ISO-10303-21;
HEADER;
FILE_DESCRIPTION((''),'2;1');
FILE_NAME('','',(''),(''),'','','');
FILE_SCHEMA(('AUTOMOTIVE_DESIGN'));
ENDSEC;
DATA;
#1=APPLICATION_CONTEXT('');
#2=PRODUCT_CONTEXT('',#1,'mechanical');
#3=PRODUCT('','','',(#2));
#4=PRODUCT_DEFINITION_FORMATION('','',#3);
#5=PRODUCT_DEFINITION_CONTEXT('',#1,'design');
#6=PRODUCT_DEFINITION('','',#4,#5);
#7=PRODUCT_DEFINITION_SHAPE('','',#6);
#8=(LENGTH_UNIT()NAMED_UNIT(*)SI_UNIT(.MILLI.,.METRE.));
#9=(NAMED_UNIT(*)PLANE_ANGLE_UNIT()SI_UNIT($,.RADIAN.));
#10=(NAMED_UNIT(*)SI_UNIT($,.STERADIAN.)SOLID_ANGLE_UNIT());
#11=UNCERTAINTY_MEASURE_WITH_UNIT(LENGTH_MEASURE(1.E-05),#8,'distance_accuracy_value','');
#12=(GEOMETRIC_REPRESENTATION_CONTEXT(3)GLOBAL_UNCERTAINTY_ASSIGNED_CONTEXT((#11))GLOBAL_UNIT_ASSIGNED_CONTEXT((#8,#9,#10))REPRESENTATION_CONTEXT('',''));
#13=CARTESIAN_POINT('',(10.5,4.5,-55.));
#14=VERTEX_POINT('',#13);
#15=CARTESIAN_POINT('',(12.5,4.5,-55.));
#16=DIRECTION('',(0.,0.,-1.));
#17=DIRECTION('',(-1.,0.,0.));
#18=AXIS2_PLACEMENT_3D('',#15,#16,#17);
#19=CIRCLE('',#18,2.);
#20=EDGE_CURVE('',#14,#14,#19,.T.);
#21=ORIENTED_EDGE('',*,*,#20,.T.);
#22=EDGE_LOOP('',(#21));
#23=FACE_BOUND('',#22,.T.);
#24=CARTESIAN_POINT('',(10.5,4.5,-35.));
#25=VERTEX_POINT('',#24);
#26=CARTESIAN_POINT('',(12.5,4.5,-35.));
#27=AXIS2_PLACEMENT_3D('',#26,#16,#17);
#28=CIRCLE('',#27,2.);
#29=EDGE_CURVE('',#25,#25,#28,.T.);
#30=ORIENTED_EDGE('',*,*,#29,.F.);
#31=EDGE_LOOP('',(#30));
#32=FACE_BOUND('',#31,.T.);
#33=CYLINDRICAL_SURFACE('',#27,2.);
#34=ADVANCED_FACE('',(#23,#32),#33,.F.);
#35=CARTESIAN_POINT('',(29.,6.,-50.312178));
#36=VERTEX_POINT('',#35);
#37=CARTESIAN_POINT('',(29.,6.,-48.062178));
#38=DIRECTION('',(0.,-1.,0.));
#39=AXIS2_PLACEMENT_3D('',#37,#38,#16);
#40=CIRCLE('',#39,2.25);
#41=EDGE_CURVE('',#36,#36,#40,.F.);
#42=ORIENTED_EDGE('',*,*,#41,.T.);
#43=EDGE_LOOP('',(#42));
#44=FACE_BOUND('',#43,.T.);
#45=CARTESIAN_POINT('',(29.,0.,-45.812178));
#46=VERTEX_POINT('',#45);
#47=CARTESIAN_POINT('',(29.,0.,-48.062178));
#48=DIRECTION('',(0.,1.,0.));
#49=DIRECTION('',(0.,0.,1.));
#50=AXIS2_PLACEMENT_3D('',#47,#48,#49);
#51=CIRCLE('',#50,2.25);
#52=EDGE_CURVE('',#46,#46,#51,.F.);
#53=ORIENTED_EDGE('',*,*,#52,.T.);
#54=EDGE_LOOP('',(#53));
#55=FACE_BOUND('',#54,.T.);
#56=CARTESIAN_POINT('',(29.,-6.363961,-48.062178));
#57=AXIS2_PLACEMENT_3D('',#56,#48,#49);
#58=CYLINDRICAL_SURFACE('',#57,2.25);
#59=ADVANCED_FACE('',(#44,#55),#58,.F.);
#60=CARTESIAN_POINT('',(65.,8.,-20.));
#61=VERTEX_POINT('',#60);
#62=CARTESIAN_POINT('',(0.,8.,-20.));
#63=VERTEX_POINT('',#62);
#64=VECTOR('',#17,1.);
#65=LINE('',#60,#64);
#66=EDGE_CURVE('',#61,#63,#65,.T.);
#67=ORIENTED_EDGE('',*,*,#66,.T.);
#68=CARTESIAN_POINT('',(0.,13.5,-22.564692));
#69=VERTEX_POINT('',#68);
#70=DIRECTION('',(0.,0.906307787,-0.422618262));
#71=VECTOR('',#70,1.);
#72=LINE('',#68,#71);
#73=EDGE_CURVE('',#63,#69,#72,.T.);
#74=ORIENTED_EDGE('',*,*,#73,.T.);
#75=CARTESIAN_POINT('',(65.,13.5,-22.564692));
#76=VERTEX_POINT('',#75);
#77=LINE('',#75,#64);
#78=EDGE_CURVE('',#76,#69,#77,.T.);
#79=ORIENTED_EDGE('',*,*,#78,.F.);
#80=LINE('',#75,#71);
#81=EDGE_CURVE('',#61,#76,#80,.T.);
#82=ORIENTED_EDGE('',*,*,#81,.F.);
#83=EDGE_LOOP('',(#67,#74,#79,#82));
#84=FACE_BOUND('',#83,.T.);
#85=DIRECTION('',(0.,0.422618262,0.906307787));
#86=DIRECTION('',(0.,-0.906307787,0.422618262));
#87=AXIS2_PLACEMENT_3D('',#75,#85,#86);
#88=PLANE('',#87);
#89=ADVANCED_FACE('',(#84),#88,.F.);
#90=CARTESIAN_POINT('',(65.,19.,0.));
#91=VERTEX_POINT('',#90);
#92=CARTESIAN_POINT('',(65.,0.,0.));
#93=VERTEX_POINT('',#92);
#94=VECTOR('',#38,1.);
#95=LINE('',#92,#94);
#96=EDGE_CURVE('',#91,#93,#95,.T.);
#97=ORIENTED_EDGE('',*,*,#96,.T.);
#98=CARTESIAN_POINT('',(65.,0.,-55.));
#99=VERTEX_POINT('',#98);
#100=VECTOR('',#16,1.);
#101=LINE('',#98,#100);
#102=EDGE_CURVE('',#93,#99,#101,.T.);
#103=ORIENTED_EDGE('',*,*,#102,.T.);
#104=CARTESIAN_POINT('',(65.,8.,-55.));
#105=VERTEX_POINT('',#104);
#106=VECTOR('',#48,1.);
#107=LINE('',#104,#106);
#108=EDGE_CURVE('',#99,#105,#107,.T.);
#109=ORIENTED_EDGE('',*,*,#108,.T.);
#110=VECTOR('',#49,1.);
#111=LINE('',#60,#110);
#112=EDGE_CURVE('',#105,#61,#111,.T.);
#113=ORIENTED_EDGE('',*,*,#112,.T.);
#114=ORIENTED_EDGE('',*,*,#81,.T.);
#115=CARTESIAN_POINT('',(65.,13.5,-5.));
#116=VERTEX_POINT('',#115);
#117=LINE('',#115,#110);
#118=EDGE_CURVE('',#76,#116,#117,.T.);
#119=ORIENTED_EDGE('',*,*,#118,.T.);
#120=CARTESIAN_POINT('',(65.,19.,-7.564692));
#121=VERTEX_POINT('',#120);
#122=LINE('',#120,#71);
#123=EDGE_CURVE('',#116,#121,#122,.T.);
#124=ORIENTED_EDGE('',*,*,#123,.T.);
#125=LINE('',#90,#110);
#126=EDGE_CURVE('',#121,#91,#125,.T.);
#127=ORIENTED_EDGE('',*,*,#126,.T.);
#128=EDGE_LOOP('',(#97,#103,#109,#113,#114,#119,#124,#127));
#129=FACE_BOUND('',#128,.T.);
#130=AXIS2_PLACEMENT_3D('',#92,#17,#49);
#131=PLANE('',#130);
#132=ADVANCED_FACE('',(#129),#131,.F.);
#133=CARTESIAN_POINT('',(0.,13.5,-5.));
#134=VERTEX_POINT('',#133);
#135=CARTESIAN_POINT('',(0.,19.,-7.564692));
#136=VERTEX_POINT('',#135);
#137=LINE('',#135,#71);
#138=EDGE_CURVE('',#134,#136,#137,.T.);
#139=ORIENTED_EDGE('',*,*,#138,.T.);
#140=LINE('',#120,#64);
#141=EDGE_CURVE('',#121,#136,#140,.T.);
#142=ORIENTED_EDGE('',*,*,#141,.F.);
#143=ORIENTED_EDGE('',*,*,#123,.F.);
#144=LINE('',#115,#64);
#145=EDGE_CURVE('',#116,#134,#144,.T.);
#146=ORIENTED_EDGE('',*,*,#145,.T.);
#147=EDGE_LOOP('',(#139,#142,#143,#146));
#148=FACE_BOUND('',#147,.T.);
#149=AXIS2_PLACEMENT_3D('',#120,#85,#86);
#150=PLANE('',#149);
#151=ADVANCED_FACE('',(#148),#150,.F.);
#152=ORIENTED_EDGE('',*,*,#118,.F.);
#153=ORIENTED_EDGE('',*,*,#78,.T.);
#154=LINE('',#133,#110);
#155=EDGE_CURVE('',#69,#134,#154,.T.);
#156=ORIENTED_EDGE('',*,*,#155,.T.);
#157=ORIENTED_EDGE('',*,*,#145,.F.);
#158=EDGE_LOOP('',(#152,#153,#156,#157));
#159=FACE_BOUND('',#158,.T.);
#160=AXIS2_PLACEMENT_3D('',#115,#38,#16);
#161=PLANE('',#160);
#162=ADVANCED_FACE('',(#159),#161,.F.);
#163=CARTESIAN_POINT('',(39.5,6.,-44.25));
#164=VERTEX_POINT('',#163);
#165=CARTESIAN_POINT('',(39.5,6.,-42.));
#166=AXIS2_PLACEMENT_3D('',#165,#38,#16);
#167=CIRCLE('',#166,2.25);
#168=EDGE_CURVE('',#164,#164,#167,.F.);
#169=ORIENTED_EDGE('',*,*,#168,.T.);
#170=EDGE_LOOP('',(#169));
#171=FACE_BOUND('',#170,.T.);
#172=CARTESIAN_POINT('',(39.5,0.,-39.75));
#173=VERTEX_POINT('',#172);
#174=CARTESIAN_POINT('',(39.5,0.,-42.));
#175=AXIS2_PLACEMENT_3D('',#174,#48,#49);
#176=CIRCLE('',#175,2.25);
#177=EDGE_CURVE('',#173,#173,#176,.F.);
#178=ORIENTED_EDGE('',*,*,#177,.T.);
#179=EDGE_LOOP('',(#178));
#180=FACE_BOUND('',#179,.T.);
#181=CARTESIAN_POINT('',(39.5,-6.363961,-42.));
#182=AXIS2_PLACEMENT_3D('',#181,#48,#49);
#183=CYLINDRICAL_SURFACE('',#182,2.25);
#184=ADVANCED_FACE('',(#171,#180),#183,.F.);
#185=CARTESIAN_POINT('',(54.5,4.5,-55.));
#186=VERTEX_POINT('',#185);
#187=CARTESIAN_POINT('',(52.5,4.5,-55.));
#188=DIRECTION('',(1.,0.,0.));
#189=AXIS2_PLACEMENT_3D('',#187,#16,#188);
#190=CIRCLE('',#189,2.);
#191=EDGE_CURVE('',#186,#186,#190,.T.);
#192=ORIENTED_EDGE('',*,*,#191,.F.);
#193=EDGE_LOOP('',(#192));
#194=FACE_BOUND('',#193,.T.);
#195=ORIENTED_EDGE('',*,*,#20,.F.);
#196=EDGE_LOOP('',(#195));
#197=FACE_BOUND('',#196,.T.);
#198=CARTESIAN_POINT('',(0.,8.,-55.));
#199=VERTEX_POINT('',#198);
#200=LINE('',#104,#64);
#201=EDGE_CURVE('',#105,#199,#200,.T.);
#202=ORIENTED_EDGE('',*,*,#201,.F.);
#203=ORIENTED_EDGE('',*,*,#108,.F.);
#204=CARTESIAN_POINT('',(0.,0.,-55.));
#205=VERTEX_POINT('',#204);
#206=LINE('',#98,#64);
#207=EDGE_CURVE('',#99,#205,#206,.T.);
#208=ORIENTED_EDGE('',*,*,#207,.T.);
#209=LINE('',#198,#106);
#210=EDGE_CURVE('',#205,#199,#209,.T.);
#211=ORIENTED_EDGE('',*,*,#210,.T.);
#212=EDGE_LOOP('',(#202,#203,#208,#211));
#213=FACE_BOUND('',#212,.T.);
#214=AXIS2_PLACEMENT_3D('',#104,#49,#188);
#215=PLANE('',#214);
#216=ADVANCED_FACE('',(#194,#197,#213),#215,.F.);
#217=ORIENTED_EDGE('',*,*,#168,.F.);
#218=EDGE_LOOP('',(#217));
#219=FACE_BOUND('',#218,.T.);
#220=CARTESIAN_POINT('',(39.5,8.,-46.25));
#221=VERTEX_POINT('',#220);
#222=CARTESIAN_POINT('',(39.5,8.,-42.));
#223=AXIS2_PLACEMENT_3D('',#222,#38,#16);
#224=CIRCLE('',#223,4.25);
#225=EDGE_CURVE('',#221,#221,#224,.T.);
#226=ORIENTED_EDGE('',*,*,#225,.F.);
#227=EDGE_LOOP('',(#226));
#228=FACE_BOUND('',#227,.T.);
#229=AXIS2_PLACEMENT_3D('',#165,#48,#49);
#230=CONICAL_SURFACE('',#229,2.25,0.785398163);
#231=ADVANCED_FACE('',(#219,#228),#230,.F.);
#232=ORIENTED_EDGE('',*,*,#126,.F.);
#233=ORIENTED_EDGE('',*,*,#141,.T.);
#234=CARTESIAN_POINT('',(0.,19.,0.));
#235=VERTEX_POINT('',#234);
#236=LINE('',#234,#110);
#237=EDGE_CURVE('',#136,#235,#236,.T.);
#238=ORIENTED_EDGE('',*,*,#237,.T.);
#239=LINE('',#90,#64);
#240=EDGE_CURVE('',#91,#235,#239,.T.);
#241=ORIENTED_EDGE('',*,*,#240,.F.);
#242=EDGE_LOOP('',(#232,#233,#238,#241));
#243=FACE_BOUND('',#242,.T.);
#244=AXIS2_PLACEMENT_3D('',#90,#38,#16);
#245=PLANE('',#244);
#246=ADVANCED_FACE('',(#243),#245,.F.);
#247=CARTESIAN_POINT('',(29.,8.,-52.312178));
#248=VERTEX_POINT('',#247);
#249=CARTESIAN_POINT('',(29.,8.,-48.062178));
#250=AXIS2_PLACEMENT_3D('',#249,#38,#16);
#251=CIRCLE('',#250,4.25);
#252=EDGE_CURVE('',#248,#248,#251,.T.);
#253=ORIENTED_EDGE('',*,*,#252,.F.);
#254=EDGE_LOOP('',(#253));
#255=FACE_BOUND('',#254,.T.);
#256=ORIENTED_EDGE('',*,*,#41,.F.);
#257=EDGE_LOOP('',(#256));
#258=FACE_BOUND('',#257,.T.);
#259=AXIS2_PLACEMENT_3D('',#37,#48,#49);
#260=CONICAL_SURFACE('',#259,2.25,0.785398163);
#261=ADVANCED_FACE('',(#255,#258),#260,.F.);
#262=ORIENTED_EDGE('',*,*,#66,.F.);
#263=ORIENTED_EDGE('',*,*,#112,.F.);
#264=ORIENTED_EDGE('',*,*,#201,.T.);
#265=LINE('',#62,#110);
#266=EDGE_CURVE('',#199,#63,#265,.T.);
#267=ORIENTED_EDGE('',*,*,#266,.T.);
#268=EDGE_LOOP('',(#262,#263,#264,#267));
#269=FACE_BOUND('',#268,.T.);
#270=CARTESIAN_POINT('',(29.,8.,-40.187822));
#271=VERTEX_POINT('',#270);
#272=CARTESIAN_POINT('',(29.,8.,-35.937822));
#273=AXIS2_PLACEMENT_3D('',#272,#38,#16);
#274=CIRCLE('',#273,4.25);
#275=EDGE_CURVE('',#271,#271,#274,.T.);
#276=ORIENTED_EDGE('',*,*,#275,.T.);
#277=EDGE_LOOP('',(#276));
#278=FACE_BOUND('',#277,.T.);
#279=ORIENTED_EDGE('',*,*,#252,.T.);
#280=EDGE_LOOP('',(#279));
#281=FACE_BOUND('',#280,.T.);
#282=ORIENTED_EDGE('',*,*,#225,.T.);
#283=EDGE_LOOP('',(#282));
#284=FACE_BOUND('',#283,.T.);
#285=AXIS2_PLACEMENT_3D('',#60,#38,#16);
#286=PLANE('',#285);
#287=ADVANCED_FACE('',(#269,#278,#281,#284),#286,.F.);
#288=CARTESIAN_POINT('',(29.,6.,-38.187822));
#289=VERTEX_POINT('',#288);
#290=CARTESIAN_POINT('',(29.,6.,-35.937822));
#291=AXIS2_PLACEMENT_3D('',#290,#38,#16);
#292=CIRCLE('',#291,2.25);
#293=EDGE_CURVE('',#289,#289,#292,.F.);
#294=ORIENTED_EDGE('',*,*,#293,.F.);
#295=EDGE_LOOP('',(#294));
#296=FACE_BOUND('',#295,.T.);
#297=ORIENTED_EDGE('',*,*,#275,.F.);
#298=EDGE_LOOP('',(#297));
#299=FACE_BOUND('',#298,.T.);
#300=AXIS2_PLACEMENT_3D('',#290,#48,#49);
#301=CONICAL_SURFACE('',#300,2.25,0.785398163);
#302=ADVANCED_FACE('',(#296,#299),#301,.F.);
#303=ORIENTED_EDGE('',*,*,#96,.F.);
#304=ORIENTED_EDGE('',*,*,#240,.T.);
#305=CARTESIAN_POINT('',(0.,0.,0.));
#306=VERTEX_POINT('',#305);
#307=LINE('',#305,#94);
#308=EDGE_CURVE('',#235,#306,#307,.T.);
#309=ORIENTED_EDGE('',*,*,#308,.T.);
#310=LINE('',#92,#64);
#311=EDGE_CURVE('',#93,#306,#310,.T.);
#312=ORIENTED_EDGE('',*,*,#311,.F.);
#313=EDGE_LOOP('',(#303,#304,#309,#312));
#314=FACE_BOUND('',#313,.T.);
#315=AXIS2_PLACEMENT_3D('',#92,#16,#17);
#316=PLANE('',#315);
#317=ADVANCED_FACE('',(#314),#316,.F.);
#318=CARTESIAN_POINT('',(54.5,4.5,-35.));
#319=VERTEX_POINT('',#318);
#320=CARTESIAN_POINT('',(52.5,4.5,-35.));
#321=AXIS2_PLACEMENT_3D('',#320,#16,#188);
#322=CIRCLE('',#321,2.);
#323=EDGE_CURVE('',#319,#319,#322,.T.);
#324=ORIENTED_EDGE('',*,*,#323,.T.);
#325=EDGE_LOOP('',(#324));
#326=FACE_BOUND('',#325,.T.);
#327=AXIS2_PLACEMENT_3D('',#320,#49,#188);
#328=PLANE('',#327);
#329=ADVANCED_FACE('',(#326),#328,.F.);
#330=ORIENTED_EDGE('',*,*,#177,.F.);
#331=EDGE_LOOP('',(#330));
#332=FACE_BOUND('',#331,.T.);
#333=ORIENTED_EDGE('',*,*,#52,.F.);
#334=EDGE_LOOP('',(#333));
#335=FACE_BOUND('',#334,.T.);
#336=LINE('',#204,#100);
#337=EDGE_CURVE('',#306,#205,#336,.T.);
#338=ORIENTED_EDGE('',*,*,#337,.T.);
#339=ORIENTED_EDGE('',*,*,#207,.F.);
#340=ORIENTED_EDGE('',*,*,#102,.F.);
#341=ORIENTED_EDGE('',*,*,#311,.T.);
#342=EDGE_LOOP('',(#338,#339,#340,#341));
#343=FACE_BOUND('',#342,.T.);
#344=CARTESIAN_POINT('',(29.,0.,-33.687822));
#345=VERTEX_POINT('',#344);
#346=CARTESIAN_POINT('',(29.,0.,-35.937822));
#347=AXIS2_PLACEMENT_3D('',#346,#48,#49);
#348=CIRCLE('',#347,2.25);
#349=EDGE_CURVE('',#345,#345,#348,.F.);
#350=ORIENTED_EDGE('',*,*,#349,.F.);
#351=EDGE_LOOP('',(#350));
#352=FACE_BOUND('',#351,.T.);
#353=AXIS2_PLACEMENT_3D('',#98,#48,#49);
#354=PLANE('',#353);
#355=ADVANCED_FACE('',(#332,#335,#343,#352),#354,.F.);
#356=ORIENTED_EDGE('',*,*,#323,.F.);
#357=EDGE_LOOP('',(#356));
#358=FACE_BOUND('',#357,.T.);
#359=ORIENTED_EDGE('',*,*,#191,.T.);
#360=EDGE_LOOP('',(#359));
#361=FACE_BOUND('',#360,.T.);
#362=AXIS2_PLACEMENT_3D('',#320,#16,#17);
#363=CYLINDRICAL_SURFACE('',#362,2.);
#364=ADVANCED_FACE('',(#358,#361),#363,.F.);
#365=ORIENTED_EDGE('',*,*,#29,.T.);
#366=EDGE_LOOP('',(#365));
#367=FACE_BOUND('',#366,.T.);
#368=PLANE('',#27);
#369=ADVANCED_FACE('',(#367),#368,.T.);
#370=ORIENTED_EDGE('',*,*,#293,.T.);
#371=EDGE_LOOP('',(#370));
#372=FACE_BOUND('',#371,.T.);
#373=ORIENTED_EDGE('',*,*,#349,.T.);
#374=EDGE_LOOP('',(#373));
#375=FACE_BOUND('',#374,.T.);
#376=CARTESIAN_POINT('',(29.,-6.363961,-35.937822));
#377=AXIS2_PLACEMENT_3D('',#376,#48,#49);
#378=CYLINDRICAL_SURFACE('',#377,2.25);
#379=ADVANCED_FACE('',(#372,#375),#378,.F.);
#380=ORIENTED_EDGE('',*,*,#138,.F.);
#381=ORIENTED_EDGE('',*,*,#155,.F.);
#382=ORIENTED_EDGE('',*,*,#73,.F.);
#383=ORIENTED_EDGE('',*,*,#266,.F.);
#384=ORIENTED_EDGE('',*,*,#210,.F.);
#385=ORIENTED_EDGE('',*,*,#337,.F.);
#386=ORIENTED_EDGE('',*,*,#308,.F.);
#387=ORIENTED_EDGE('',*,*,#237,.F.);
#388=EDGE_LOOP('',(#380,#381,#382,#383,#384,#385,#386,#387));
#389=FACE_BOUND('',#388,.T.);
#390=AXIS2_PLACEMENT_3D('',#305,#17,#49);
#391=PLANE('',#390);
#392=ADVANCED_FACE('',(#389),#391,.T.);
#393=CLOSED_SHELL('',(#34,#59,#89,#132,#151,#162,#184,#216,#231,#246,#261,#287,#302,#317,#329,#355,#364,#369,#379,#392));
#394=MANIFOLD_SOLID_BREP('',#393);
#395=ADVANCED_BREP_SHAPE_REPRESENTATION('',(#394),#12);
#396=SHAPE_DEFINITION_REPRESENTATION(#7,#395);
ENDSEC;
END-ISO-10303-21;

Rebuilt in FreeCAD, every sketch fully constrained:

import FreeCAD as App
import Part
import Sketcher
from FreeCAD import Vector
Q = App.Units.Quantity


def edges_at(feature, points):
    """Names of the edges that pass closest to the given points."""
    edges = feature.Shape.Edges
    near = lambda p: min(range(len(edges)), key=lambda i: edges[i].distToShape(Part.Vertex(*p))[0])
    return sorted({f"Edge{near(p) + 1}" for p in points})


def add_polygon(sketch, points):
    """Adds a closed chain of lines whose ends are joined by coincident constraints."""
    first, n = sketch.GeometryCount, len(points)
    for a, b in zip(points, points[1:] + points[:1]):
        sketch.addGeometry(Part.LineSegment(App.Vector(*a, 0), App.Vector(*b, 0)), False)
    for i in range(n):
        sketch.addConstraint(Sketcher.Constraint("Coincident", first + i, 2, first + (i + 1) % n, 1))

doc = App.newDocument("Part")
body = doc.addObject("PartDesign::Body", "Body")

sketch1 = body.newObject("Sketcher::SketchObject", "Sketch")
sketch1.AttachmentSupport = (doc.getObject("YZ_Plane"), [""])
sketch1.MapMode = "FlatFace"
add_polygon(sketch1, [(19, 0), (0, 0), (0, -55), (8, -55), (8, -20), (14, -23), (14, -5), (19, -8)])
sketch1.addConstraint([
    Sketcher.Constraint("Horizontal", 0),
    Sketcher.Constraint("Vertical", 1),
    Sketcher.Constraint("Horizontal", 2),
    Sketcher.Constraint("Vertical", 3),
    Sketcher.Constraint("Vertical", 5),
    Sketcher.Constraint("Vertical", 7),
    Sketcher.Constraint("Coincident", 0, 2, -1, 1),
    Sketcher.Constraint("Parallel", 4, 6),
    Sketcher.Constraint("Equal", 4, 6),
    Sketcher.Constraint("DistanceX", 0, 2, 0, 1, 19.0),
    Sketcher.Constraint("DistanceX", 2, 1, 2, 2, 8.0),
    Sketcher.Constraint("DistanceY", 1, 2, 1, 1, 55.0),
    Sketcher.Constraint("DistanceY", 3, 1, 3, 2, 35.0),
    Sketcher.Constraint("Angle", 4, Q("-25 deg")),
    Sketcher.Constraint("DistanceY", 5, 2, -1, 1, 5.0),
])
pad1 = body.newObject("PartDesign::Pad", "Pad")
pad1.Profile = sketch1
pad1.Length = 65

sketch2 = body.newObject("Sketcher::SketchObject", "Sketch001")
sketch2.AttachmentSupport = (doc.getObject("XY_Plane"), [""])
sketch2.MapMode = "FlatFace"
sketch2.AttachmentOffset = App.Placement(Vector(0, 0, -55), App.Rotation())
sketch2.addGeometry([
    Part.Circle(Vector(12.5, 4.5, 0), Vector(0, 0, 1), 2),
    Part.Circle(Vector(52.5, 4.5, 0), Vector(0, 0, 1), 2),
], False)
sketch2.addConstraint([
    Sketcher.Constraint("Equal", 0, 1),
    Sketcher.Constraint("Horizontal", 0, 3, 1, 3),
    Sketcher.Constraint("Diameter", 0, 4.0),
    Sketcher.Constraint("DistanceX", 0, 3, 1, 3, 40.0),
    Sketcher.Constraint("DistanceX", -1, 1, 0, 3, 12.5),
    Sketcher.Constraint("DistanceY", -1, 1, 0, 3, 4.5),
])
pocket1 = body.newObject("PartDesign::Pocket", "Pocket")
pocket1.Profile = sketch2
pocket1.Length = 20
pocket1.Reversed = True

sketch3 = body.newObject("Sketcher::SketchObject", "Sketch002")
sketch3.AttachmentSupport = (doc.getObject("XZ_Plane"), [""])
sketch3.MapMode = "FlatFace"
sketch3.AttachmentOffset = App.Placement(Vector(0, 0, -8), App.Rotation())
sketch3.addGeometry([
    Part.Circle(Vector(39.5, -42, 0), Vector(0, 0, 1), 2.2),
    Part.Circle(Vector(29, -35.9, 0), Vector(0, 0, 1), 2.2),
    Part.Circle(Vector(29, -48.1, 0), Vector(0, 0, 1), 2.2),
], False)
sketch3.addConstraint([
    Sketcher.Constraint("Equal", 0, 1),
    Sketcher.Constraint("Equal", 1, 2),
    Sketcher.Constraint("Vertical", 1, 3, 2, 3),
    Sketcher.Constraint("Diameter", 0, 4.5),
    Sketcher.Constraint("DistanceY", 0, 3, -1, 1, 42.0),
    Sketcher.Constraint("DistanceX", -1, 1, 1, 3, 29.0),
    Sketcher.Constraint("DistanceX", -1, 1, 0, 3, 39.5),
    Sketcher.Constraint("DistanceY", 1, 3, -1, 1, 35.937822),
    Sketcher.Constraint("DistanceY", 2, 3, -1, 1, 48.062178),
])
pocket2 = body.newObject("PartDesign::Pocket", "Pocket001")
pocket2.Profile = sketch3
pocket2.Length = 8
pocket2.Reversed = True
doc.recompute()

chamfer = body.newObject("PartDesign::Chamfer", "Chamfer")
chamfer.Base = (pocket2, edges_at(pocket2, [(39.5, 8, -44.25), (29, 8, -38.188), (29, 8, -50.312)]))
chamfer.Size = 2

doc.recompute()
